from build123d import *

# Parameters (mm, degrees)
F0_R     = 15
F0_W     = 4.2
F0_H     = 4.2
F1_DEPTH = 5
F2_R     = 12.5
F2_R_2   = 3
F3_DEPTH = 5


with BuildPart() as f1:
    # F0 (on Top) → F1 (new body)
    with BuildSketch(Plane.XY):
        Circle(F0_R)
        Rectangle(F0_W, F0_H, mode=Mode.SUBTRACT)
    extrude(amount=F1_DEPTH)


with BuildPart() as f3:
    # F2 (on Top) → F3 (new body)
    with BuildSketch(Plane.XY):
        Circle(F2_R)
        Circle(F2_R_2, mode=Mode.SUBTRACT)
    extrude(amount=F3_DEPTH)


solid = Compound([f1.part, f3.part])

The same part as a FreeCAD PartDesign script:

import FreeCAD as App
import Part
import Sketcher

V = App.Vector


def add_polygon(sketch, points):
    """Adds a closed chain of lines whose ends are joined by coincident constraints."""
    first, n = sketch.GeometryCount, len(points)
    for a, b in zip(points, points[1:] + points[:1]):
        sketch.addGeometry(Part.LineSegment(App.Vector(*a, 0), App.Vector(*b, 0)), False)
    for i in range(n):
        sketch.addConstraint(Sketcher.Constraint("Coincident", first + i, 2, first + (i + 1) % n, 1))

doc = App.newDocument("Part")
params = doc.addObject("Spreadsheet::Sheet", "Params")
for row, (alias, value) in enumerate([
    ("sketch1_diameter", "30 mm"),
    ("sketch1_width", "4.2 mm"),
    ("pad1_length", "5 mm"),
    ("sketch2_diameter", "25 mm"),
    ("sketch2_diameter2", "6 mm"),
    ("pad2_length", "5 mm"),
], start=1):
    params.set(f"A{row}", alias)
    params.set(f"B{row}", "=" + value)
    params.setAlias(f"B{row}", alias)

body = doc.addObject("PartDesign::Body", "Body")

# Sketch on XY plane
sketch1 = body.newObject("Sketcher::SketchObject", "Sketch")
sketch1.AttachmentSupport = (doc.getObject("XY_Plane"), [""])
sketch1.MapMode = "FlatFace"
sketch1.addGeometry(Part.Circle(V(0, 0, 0), V(0, 0, 1), 15), False)  # 0
add_polygon(sketch1, [(2.1, -2.1), (-2.1, -2.1), (-2.1, 2.1), (2.1, 2.1)])  # lines 1-4
sketch1.addConstraint([
    Sketcher.Constraint("Horizontal", 1),
    Sketcher.Constraint("Vertical", 2),
    Sketcher.Constraint("Horizontal", 3),
    Sketcher.Constraint("Vertical", 4),
    Sketcher.Constraint("Coincident", 0, 3, -1, 1),
    Sketcher.Constraint("Symmetric", 1, 2, 3, 2, -1, 1),
    Sketcher.Constraint("Equal", 3, 2),
    Sketcher.Constraint("Diameter", 0, 30.0),
    Sketcher.Constraint("DistanceX", 1, 2, 1, 1, 4.2),
])
sketch1.setExpression("Constraints[11]", "Params.sketch1_diameter")
sketch1.setExpression("Constraints[12]", "Params.sketch1_width")
pad1 = body.newObject("PartDesign::Pad", "Pad")
pad1.Profile = sketch1
pad1.setExpression("Length", "Params.pad1_length")
body2 = doc.addObject("PartDesign::Body", "Body001")

# Sketch on XY plane
sketch2 = body2.newObject("Sketcher::SketchObject", "Sketch001")
sketch2.AttachmentSupport = (doc.getObject("XY_Plane001"), [""])
sketch2.MapMode = "FlatFace"
sketch2.addGeometry([
    Part.Circle(V(0, 0, 0), V(0, 0, 1), 12.5),
    Part.Circle(V(0, 0, 0), V(0, 0, 1), 3),
], False)
sketch2.addConstraint([
    Sketcher.Constraint("Coincident", 0, 3, -1, 1),
    Sketcher.Constraint("Coincident", 1, 3, -1, 1),
    Sketcher.Constraint("Diameter", 0, 25.0),
    Sketcher.Constraint("Diameter", 1, 6.0),
])
sketch2.setExpression("Constraints[2]", "Params.sketch2_diameter")
sketch2.setExpression("Constraints[3]", "Params.sketch2_diameter2")
pad2 = body2.newObject("PartDesign::Pad", "Pad001")
pad2.Profile = sketch2
pad2.setExpression("Length", "Params.pad2_length")

doc.recompute()
